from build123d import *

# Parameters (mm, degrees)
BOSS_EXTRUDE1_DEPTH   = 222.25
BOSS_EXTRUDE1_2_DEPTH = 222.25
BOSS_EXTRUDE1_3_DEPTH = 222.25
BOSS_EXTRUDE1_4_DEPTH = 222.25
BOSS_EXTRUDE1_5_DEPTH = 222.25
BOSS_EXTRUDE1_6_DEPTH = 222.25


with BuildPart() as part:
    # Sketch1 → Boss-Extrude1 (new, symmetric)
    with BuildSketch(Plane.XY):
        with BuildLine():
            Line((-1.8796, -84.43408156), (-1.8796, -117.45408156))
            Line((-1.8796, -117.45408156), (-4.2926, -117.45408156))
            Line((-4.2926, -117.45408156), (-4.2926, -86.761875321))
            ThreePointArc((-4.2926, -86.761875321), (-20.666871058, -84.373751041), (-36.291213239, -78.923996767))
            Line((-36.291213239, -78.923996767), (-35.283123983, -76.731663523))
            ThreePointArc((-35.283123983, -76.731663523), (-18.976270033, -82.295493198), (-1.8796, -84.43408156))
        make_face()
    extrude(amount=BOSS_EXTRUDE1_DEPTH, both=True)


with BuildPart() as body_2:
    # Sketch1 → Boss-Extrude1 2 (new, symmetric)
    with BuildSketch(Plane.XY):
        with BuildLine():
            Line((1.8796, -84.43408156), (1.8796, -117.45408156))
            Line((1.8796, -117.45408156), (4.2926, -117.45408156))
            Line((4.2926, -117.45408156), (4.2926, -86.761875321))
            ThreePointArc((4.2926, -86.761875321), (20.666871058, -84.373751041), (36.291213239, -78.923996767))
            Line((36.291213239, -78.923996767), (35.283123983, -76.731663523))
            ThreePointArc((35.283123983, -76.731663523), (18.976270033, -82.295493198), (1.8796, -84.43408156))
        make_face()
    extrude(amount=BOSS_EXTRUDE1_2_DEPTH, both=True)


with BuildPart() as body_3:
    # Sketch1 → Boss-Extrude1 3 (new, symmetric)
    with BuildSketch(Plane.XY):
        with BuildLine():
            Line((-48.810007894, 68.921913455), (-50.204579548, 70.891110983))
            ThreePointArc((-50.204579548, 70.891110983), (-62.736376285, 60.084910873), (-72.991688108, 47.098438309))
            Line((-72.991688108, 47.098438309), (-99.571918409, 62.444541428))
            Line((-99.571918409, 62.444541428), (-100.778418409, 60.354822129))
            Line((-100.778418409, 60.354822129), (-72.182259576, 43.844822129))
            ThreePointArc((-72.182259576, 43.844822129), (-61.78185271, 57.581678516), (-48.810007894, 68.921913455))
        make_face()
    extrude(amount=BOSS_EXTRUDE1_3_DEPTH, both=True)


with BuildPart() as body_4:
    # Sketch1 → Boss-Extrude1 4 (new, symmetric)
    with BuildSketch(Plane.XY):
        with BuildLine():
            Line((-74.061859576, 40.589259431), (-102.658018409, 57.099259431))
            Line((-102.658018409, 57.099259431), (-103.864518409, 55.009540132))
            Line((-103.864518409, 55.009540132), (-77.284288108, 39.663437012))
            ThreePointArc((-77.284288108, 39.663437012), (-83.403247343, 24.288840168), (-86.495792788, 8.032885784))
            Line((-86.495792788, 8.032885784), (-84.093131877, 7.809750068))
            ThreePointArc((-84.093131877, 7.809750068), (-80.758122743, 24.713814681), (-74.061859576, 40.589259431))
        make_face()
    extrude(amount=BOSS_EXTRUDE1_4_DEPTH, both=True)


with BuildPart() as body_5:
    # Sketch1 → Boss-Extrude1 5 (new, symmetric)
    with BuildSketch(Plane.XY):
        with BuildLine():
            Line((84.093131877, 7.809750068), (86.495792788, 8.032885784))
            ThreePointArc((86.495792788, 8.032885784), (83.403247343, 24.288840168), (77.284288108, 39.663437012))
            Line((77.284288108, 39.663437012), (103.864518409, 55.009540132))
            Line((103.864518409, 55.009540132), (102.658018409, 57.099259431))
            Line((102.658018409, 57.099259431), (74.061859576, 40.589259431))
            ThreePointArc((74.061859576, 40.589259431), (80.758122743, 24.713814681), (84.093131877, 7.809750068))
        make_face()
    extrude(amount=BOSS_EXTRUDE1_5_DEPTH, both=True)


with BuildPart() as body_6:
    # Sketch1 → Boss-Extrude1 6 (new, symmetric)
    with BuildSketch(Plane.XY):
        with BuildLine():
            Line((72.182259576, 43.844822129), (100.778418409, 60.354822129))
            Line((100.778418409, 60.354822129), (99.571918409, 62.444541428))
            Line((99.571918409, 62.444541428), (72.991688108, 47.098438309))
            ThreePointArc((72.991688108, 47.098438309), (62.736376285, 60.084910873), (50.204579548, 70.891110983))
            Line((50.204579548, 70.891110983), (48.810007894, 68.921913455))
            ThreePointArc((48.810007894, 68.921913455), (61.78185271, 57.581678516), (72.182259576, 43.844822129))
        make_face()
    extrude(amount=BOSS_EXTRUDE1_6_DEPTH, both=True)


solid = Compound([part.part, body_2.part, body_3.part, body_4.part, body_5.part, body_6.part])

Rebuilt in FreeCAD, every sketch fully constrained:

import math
import FreeCAD as App
import Part
import Sketcher
from FreeCAD import Vector
Q = App.Units.Quantity

doc = App.newDocument("Part")
body = doc.addObject("PartDesign::Body", "Body")

# Sketch on XY plane
sketch1 = doc.addObject("Sketcher::SketchObject", "Sketch")
body.addObject(sketch1)
sketch1.AttachmentSupport = (doc.XY_Plane, [""])
sketch1.MapMode = "FlatFace"
sketch1.addGeometry(Part.LineSegment(Vector(-1.8796, -117.454082, 0), Vector(-1.8796, -84.434082, 0)), False)
sketch1.addGeometry(Part.ArcOfCircle(Part.Circle(Vector(0, 0, 0), Vector(0, 0, 1), 84.455), math.radians(-114.694146), math.radians(-91.275259)), False)
sketch1.addGeometry(Part.LineSegment(Vector(-35.283124, -76.731664, 0), Vector(-36.291213, -78.923997, 0)), False)
sketch1.addGeometry(Part.ArcOfCircle(Part.Circle(Vector(0, 0, 0), Vector(0, 0, 1), 86.868), math.radians(-114.694146), math.radians(-92.832436)), False)
sketch1.addGeometry(Part.LineSegment(Vector(-4.2926, -86.761875, 0), Vector(-4.2926, -117.454082, 0)), False)
sketch1.addGeometry(Part.LineSegment(Vector(-4.2926, -117.454082, 0), Vector(-1.8796, -117.454082, 0)), False)
sketch1.addConstraint(Sketcher.Constraint("Coincident", 0, 2, 1, 2))
sketch1.addConstraint(Sketcher.Constraint("Coincident", 1, 1, 2, 1))
sketch1.addConstraint(Sketcher.Constraint("Coincident", 2, 2, 3, 1))
sketch1.addConstraint(Sketcher.Constraint("Coincident", 3, 2, 4, 1))
sketch1.addConstraint(Sketcher.Constraint("Coincident", 4, 2, 5, 1))
sketch1.addConstraint(Sketcher.Constraint("Coincident", 5, 2, 0, 1))
sketch1.addConstraint(Sketcher.Constraint("Vertical", 0))
sketch1.addConstraint(Sketcher.Constraint("Vertical", 4))
sketch1.addConstraint(Sketcher.Constraint("Horizontal", 5))
sketch1.addConstraint(Sketcher.Constraint("Coincident", 1, 3, -1, 1))
sketch1.addConstraint(Sketcher.Constraint("Coincident", 3, 3, -1, 1))
sketch1.addConstraint(Sketcher.Constraint("Radius", 3, Q("3.42 in")))
sketch1.addConstraint(Sketcher.Constraint("DistanceY", 0, 1, 0, 2, Q("1.3 in")))
sketch1.addConstraint(Sketcher.Constraint("Radius", 1, Q("3.325 in")))
sketch1.addConstraint(Sketcher.Constraint("DistanceX", 5, 1, 5, 2, Q("0.095 in")))
sketch1.addConstraint(Sketcher.Constraint("DistanceX", 0, 2, -1, 1, Q("0.074 in")))
sketch1.addConstraint(Sketcher.Constraint("DistanceY", 0, 2, 1, 1, Q("7.702418 mm")))
sketch1.addConstraint(Sketcher.Constraint("DistanceX", 2, 2, 1, 1, Q("1.008089 mm")))
pad1 = doc.addObject("PartDesign::Pad", "Pad")
body.addObject(pad1)
pad1.Profile = sketch1
pad1.Length = Q("17.5 in")
pad1.Midplane = True
body2 = doc.addObject("PartDesign::Body", "Body001")

# Sketch on XY plane
sketch2 = doc.addObject("Sketcher::SketchObject", "Sketch001")
body2.addObject(sketch2)
sketch2.AttachmentSupport = (doc.getObject("XY_Plane001"), [""])
sketch2.MapMode = "FlatFace"
sketch2.addGeometry(Part.LineSegment(Vector(1.8796, -84.434082, 0), Vector(1.8796, -117.454082, 0)), False)
sketch2.addGeometry(Part.LineSegment(Vector(1.8796, -117.454082, 0), Vector(4.2926, -117.454082, 0)), False)
sketch2.addGeometry(Part.LineSegment(Vector(4.2926, -117.454082, 0), Vector(4.2926, -86.761875, 0)), False)
sketch2.addGeometry(Part.ArcOfCircle(Part.Circle(Vector(0, 0, 0), Vector(0, 0, 1), 86.868), math.radians(-87.167564), math.radians(-65.305854)), False)
sketch2.addGeometry(Part.LineSegment(Vector(36.291213, -78.923997, 0), Vector(35.283124, -76.731664, 0)), False)
sketch2.addGeometry(Part.ArcOfCircle(Part.Circle(Vector(0, 0, 0), Vector(0, 0, 1), 84.455), math.radians(-88.724741), math.radians(-65.305854)), False)
sketch2.addConstraint(Sketcher.Constraint("Coincident", 0, 2, 1, 1))
sketch2.addConstraint(Sketcher.Constraint("Coincident", 1, 2, 2, 1))
sketch2.addConstraint(Sketcher.Constraint("Coincident", 2, 2, 3, 1))
sketch2.addConstraint(Sketcher.Constraint("Coincident", 3, 2, 4, 1))
sketch2.addConstraint(Sketcher.Constraint("Coincident", 4, 2, 5, 2))
sketch2.addConstraint(Sketcher.Constraint("Coincident", 5, 1, 0, 1))
sketch2.addConstraint(Sketcher.Constraint("Vertical", 0))
sketch2.addConstraint(Sketcher.Constraint("Horizontal", 1))
sketch2.addConstraint(Sketcher.Constraint("Vertical", 2))
sketch2.addConstraint(Sketcher.Constraint("Coincident", 3, 3, -1, 1))
sketch2.addConstraint(Sketcher.Constraint("Coincident", 5, 3, -1, 1))
sketch2.addConstraint(Sketcher.Constraint("Radius", 3, Q("3.42 in")))
sketch2.addConstraint(Sketcher.Constraint("DistanceY", 0, 2, 0, 1, Q("1.3 in")))
sketch2.addConstraint(Sketcher.Constraint("Radius", 5, Q("3.325 in")))
sketch2.addConstraint(Sketcher.Constraint("DistanceX", 1, 1, 1, 2, Q("0.095 in")))
sketch2.addConstraint(Sketcher.Constraint("DistanceX", -1, 1, 0, 2, Q("0.074 in")))
sketch2.addConstraint(Sketcher.Constraint("DistanceY", 2, 2, 3, 2, Q("7.837879 mm")))
sketch2.addConstraint(Sketcher.Constraint("DistanceX", 4, 2, 3, 2, Q("1.008089 mm")))
pad2 = doc.addObject("PartDesign::Pad", "Pad001")
body2.addObject(pad2)
pad2.Profile = sketch2
pad2.Length = Q("17.5 in")
pad2.Midplane = True
body3 = doc.addObject("PartDesign::Body", "Body002")

# Sketch on XY plane
sketch3 = doc.addObject("Sketcher::SketchObject", "Sketch002")
body3.addObject(sketch3)
sketch3.AttachmentSupport = (doc.getObject("XY_Plane002"), [""])
sketch3.MapMode = "FlatFace"
sketch3.addGeometry(Part.LineSegment(Vector(-48.810008, 68.921913, 0), Vector(-50.20458, 70.891111, 0)), False)
sketch3.addGeometry(Part.ArcOfCircle(Part.Circle(Vector(0, 0, 0), Vector(0, 0, 1), 86.868), math.radians(125.305854), math.radians(147.167564)), False)
sketch3.addGeometry(Part.LineSegment(Vector(-72.991688, 47.098438, 0), Vector(-99.571918, 62.444541, 0)), False)
sketch3.addGeometry(Part.LineSegment(Vector(-99.571918, 62.444541, 0), Vector(-100.778418, 60.354822, 0)), False)
sketch3.addGeometry(Part.LineSegment(Vector(-100.778418, 60.354822, 0), Vector(-72.18226, 43.844822, 0)), False)
sketch3.addGeometry(Part.ArcOfCircle(Part.Circle(Vector(0, 0, 0), Vector(0, 0, 1), 84.455), math.radians(125.305854), math.radians(148.724741)), False)
sketch3.addConstraint(Sketcher.Constraint("Coincident", 0, 2, 1, 1))
sketch3.addConstraint(Sketcher.Constraint("Coincident", 1, 2, 2, 1))
sketch3.addConstraint(Sketcher.Constraint("Coincident", 2, 2, 3, 1))
sketch3.addConstraint(Sketcher.Constraint("Coincident", 3, 2, 4, 1))
sketch3.addConstraint(Sketcher.Constraint("Coincident", 4, 2, 5, 2))
sketch3.addConstraint(Sketcher.Constraint("Coincident", 5, 1, 0, 1))
sketch3.addConstraint(Sketcher.Constraint("Coincident", 1, 3, -1, 1))
sketch3.addConstraint(Sketcher.Constraint("Coincident", 5, 3, -1, 1))
sketch3.addConstraint(Sketcher.Constraint("Perpendicular", 2, 3))
sketch3.addConstraint(Sketcher.Constraint("Perpendicular", 3, 4))
sketch3.addConstraint(Sketcher.Constraint("Equal", 0, 3))
sketch3.addConstraint(Sketcher.Constraint("Radius", 1, Q("3.42 in")))
sketch3.addConstraint(Sketcher.Constraint("Angle", 2, Q("150 deg")))
sketch3.addConstraint(Sketcher.Constraint("Radius", 5, Q("3.325 in")))
sketch3.addConstraint(Sketcher.Constraint("Distance", 4, Q("1.3 in")))
sketch3.addConstraint(Sketcher.Constraint("DistanceX", 0, 2, -1, 1, Q("50.20458 mm")))
sketch3.addConstraint(Sketcher.Constraint("DistanceX", 1, 2, -1, 1, Q("72.991688 mm")))
sketch3.addConstraint(Sketcher.Constraint("DistanceX", 0, 2, 5, 1, Q("1.394572 mm")))
pad3 = doc.addObject("PartDesign::Pad", "Pad002")
body3.addObject(pad3)
pad3.Profile = sketch3
pad3.Length = Q("17.5 in")
pad3.Midplane = True
body4 = doc.addObject("PartDesign::Body", "Body003")

# Sketch on XY plane
sketch4 = doc.addObject("Sketcher::SketchObject", "Sketch003")
body4.addObject(sketch4)
sketch4.AttachmentSupport = (doc.getObject("XY_Plane003"), [""])
sketch4.MapMode = "FlatFace"
sketch4.addGeometry(Part.LineSegment(Vector(-74.06186, 40.589259, 0), Vector(-102.658018, 57.099259, 0)), False)
sketch4.addGeometry(Part.LineSegment(Vector(-102.658018, 57.099259, 0), Vector(-103.864518, 55.00954, 0)), False)
sketch4.addGeometry(Part.LineSegment(Vector(-103.864518, 55.00954, 0), Vector(-77.284288, 39.663437, 0)), False)
sketch4.addGeometry(Part.ArcOfCircle(Part.Circle(Vector(0, 0, 0), Vector(0, 0, 1), 86.868), math.radians(152.832436), math.radians(174.694146)), False)
sketch4.addGeometry(Part.LineSegment(Vector(-86.495793, 8.032886, 0), Vector(-84.093132, 7.80975, 0)), False)
sketch4.addGeometry(Part.ArcOfCircle(Part.Circle(Vector(0, 0, 0), Vector(0, 0, 1), 84.455), math.radians(151.275259), math.radians(174.694146)), False)
sketch4.addConstraint(Sketcher.Constraint("Coincident", 0, 2, 1, 1))
sketch4.addConstraint(Sketcher.Constraint("Coincident", 1, 2, 2, 1))
sketch4.addConstraint(Sketcher.Constraint("Coincident", 2, 2, 3, 1))
sketch4.addConstraint(Sketcher.Constraint("Coincident", 3, 2, 4, 1))
sketch4.addConstraint(Sketcher.Constraint("Coincident", 4, 2, 5, 2))
sketch4.addConstraint(Sketcher.Constraint("Coincident", 5, 1, 0, 1))
sketch4.addConstraint(Sketcher.Constraint("Coincident", 3, 3, -1, 1))
sketch4.addConstraint(Sketcher.Constraint("Coincident", 5, 3, -1, 1))
sketch4.addConstraint(Sketcher.Constraint("Perpendicular", 0, 1))
sketch4.addConstraint(Sketcher.Constraint("Perpendicular", 1, 2))
sketch4.addConstraint(Sketcher.Constraint("Equal", 1, 4))
sketch4.addConstraint(Sketcher.Constraint("Radius", 3, Q("3.42 in")))
sketch4.addConstraint(Sketcher.Constraint("Angle", 0, Q("150 deg")))
sketch4.addConstraint(Sketcher.Constraint("Radius", 5, Q("3.325 in")))
sketch4.addConstraint(Sketcher.Constraint("Distance", 0, Q("1.3 in")))
sketch4.addConstraint(Sketcher.Constraint("DistanceX", 0, 2, -1, 1, Q("102.658018 mm")))
sketch4.addConstraint(Sketcher.Constraint("DistanceX", 4, 2, -1, 1, Q("84.093132 mm")))
sketch4.addConstraint(Sketcher.Constraint("DistanceY", 3, 2, 2, 2, Q("31.630551 mm")))
pad4 = doc.addObject("PartDesign::Pad", "Pad003")
body4.addObject(pad4)
pad4.Profile = sketch4
pad4.Length = Q("17.5 in")
pad4.Midplane = True
body5 = doc.addObject("PartDesign::Body", "Body004")

# Sketch on XY plane
sketch5 = doc.addObject("Sketcher::SketchObject", "Sketch004")
body5.addObject(sketch5)
sketch5.AttachmentSupport = (doc.getObject("XY_Plane004"), [""])
sketch5.MapMode = "FlatFace"
sketch5.addGeometry(Part.LineSegment(Vector(84.093132, 7.80975, 0), Vector(86.495793, 8.032886, 0)), False)
sketch5.addGeometry(Part.ArcOfCircle(Part.Circle(Vector(0, 0, 0), Vector(0, 0, 1), 86.868), math.radians(5.305854), math.radians(27.167564)), False)
sketch5.addGeometry(Part.LineSegment(Vector(77.284288, 39.663437, 0), Vector(103.864518, 55.00954, 0)), False)
sketch5.addGeometry(Part.LineSegment(Vector(103.864518, 55.00954, 0), Vector(102.658018, 57.099259, 0)), False)
sketch5.addGeometry(Part.LineSegment(Vector(102.658018, 57.099259, 0), Vector(74.06186, 40.589259, 0)), False)
sketch5.addGeometry(Part.ArcOfCircle(Part.Circle(Vector(0, 0, 0), Vector(0, 0, 1), 84.455), math.radians(5.305854), math.radians(28.724741)), False)
sketch5.addConstraint(Sketcher.Constraint("Coincident", 0, 2, 1, 1))
sketch5.addConstraint(Sketcher.Constraint("Coincident", 1, 2, 2, 1))
sketch5.addConstraint(Sketcher.Constraint("Coincident", 2, 2, 3, 1))
sketch5.addConstraint(Sketcher.Constraint("Coincident", 3, 2, 4, 1))
sketch5.addConstraint(Sketcher.Constraint("Coincident", 4, 2, 5, 2))
sketch5.addConstraint(Sketcher.Constraint("Coincident", 5, 1, 0, 1))
sketch5.addConstraint(Sketcher.Constraint("Coincident", 1, 3, -1, 1))
sketch5.addConstraint(Sketcher.Constraint("Coincident", 5, 3, -1, 1))
sketch5.addConstraint(Sketcher.Constraint("Perpendicular", 2, 3))
sketch5.addConstraint(Sketcher.Constraint("Perpendicular", 3, 4))
sketch5.addConstraint(Sketcher.Constraint("Equal", 0, 3))
sketch5.addConstraint(Sketcher.Constraint("Radius", 1, Q("3.42 in")))
sketch5.addConstraint(Sketcher.Constraint("Angle", 2, Q("30 deg")))
sketch5.addConstraint(Sketcher.Constraint("Radius", 5, Q("3.325 in")))
sketch5.addConstraint(Sketcher.Constraint("Distance", 4, Q("1.3 in")))
sketch5.addConstraint(Sketcher.Constraint("DistanceX", -1, 1, 1, 2, Q("77.284288 mm")))
sketch5.addConstraint(Sketcher.Constraint("DistanceX", -1, 1, 5, 1, Q("84.093132 mm")))
sketch5.addConstraint(Sketcher.Constraint("DistanceY", 0, 2, 1, 2, Q("31.630551 mm")))
pad5 = doc.addObject("PartDesign::Pad", "Pad004")
body5.addObject(pad5)
pad5.Profile = sketch5
pad5.Length = Q("17.5 in")
pad5.Midplane = True
body6 = doc.addObject("PartDesign::Body", "Body005")

# Sketch on XY plane
sketch6 = doc.addObject("Sketcher::SketchObject", "Sketch005")
body6.addObject(sketch6)
sketch6.AttachmentSupport = (doc.getObject("XY_Plane005"), [""])
sketch6.MapMode = "FlatFace"
sketch6.addGeometry(Part.LineSegment(Vector(72.18226, 43.844822, 0), Vector(100.778418, 60.354822, 0)), False)
sketch6.addGeometry(Part.LineSegment(Vector(100.778418, 60.354822, 0), Vector(99.571918, 62.444541, 0)), False)
sketch6.addGeometry(Part.LineSegment(Vector(99.571918, 62.444541, 0), Vector(72.991688, 47.098438, 0)), False)
sketch6.addGeometry(Part.ArcOfCircle(Part.Circle(Vector(0, 0, 0), Vector(0, 0, 1), 86.868), math.radians(32.832436), math.radians(54.694146)), False)
sketch6.addGeometry(Part.LineSegment(Vector(50.20458, 70.891111, 0), Vector(48.810008, 68.921913, 0)), False)
sketch6.addGeometry(Part.ArcOfCircle(Part.Circle(Vector(0, 0, 0), Vector(0, 0, 1), 84.455), math.radians(31.275259), math.radians(54.694146)), False)
sketch6.addConstraint(Sketcher.Constraint("Coincident", 0, 2, 1, 1))
sketch6.addConstraint(Sketcher.Constraint("Coincident", 1, 2, 2, 1))
sketch6.addConstraint(Sketcher.Constraint("Coincident", 2, 2, 3, 1))
sketch6.addConstraint(Sketcher.Constraint("Coincident", 3, 2, 4, 1))
sketch6.addConstraint(Sketcher.Constraint("Coincident", 4, 2, 5, 2))
sketch6.addConstraint(Sketcher.Constraint("Coincident", 5, 1, 0, 1))
sketch6.addConstraint(Sketcher.Constraint("Coincident", 3, 3, -1, 1))
sketch6.addConstraint(Sketcher.Constraint("Coincident", 5, 3, -1, 1))
sketch6.addConstraint(Sketcher.Constraint("Perpendicular", 0, 1))
sketch6.addConstraint(Sketcher.Constraint("Perpendicular", 1, 2))
sketch6.addConstraint(Sketcher.Constraint("Equal", 1, 4))
sketch6.addConstraint(Sketcher.Constraint("Radius", 3, Q("3.42 in")))
sketch6.addConstraint(Sketcher.Constraint("Angle", 0, Q("30 deg")))
sketch6.addConstraint(Sketcher.Constraint("Radius", 5, Q("3.325 in")))
sketch6.addConstraint(Sketcher.Constraint("Distance", 0, Q("1.3 in")))
sketch6.addConstraint(Sketcher.Constraint("DistanceX", -1, 1, 0, 2, Q("100.778418 mm")))
sketch6.addConstraint(Sketcher.Constraint("DistanceX", -1, 1, 3, 2, Q("50.20458 mm")))
sketch6.addConstraint(Sketcher.Constraint("DistanceX", 4, 2, 3, 2, Q("1.394572 mm")))
pad6 = doc.addObject("PartDesign::Pad", "Pad005")
body6.addObject(pad6)
pad6.Profile = sketch6
pad6.Length = Q("17.5 in")
pad6.Midplane = True

doc.recompute()
